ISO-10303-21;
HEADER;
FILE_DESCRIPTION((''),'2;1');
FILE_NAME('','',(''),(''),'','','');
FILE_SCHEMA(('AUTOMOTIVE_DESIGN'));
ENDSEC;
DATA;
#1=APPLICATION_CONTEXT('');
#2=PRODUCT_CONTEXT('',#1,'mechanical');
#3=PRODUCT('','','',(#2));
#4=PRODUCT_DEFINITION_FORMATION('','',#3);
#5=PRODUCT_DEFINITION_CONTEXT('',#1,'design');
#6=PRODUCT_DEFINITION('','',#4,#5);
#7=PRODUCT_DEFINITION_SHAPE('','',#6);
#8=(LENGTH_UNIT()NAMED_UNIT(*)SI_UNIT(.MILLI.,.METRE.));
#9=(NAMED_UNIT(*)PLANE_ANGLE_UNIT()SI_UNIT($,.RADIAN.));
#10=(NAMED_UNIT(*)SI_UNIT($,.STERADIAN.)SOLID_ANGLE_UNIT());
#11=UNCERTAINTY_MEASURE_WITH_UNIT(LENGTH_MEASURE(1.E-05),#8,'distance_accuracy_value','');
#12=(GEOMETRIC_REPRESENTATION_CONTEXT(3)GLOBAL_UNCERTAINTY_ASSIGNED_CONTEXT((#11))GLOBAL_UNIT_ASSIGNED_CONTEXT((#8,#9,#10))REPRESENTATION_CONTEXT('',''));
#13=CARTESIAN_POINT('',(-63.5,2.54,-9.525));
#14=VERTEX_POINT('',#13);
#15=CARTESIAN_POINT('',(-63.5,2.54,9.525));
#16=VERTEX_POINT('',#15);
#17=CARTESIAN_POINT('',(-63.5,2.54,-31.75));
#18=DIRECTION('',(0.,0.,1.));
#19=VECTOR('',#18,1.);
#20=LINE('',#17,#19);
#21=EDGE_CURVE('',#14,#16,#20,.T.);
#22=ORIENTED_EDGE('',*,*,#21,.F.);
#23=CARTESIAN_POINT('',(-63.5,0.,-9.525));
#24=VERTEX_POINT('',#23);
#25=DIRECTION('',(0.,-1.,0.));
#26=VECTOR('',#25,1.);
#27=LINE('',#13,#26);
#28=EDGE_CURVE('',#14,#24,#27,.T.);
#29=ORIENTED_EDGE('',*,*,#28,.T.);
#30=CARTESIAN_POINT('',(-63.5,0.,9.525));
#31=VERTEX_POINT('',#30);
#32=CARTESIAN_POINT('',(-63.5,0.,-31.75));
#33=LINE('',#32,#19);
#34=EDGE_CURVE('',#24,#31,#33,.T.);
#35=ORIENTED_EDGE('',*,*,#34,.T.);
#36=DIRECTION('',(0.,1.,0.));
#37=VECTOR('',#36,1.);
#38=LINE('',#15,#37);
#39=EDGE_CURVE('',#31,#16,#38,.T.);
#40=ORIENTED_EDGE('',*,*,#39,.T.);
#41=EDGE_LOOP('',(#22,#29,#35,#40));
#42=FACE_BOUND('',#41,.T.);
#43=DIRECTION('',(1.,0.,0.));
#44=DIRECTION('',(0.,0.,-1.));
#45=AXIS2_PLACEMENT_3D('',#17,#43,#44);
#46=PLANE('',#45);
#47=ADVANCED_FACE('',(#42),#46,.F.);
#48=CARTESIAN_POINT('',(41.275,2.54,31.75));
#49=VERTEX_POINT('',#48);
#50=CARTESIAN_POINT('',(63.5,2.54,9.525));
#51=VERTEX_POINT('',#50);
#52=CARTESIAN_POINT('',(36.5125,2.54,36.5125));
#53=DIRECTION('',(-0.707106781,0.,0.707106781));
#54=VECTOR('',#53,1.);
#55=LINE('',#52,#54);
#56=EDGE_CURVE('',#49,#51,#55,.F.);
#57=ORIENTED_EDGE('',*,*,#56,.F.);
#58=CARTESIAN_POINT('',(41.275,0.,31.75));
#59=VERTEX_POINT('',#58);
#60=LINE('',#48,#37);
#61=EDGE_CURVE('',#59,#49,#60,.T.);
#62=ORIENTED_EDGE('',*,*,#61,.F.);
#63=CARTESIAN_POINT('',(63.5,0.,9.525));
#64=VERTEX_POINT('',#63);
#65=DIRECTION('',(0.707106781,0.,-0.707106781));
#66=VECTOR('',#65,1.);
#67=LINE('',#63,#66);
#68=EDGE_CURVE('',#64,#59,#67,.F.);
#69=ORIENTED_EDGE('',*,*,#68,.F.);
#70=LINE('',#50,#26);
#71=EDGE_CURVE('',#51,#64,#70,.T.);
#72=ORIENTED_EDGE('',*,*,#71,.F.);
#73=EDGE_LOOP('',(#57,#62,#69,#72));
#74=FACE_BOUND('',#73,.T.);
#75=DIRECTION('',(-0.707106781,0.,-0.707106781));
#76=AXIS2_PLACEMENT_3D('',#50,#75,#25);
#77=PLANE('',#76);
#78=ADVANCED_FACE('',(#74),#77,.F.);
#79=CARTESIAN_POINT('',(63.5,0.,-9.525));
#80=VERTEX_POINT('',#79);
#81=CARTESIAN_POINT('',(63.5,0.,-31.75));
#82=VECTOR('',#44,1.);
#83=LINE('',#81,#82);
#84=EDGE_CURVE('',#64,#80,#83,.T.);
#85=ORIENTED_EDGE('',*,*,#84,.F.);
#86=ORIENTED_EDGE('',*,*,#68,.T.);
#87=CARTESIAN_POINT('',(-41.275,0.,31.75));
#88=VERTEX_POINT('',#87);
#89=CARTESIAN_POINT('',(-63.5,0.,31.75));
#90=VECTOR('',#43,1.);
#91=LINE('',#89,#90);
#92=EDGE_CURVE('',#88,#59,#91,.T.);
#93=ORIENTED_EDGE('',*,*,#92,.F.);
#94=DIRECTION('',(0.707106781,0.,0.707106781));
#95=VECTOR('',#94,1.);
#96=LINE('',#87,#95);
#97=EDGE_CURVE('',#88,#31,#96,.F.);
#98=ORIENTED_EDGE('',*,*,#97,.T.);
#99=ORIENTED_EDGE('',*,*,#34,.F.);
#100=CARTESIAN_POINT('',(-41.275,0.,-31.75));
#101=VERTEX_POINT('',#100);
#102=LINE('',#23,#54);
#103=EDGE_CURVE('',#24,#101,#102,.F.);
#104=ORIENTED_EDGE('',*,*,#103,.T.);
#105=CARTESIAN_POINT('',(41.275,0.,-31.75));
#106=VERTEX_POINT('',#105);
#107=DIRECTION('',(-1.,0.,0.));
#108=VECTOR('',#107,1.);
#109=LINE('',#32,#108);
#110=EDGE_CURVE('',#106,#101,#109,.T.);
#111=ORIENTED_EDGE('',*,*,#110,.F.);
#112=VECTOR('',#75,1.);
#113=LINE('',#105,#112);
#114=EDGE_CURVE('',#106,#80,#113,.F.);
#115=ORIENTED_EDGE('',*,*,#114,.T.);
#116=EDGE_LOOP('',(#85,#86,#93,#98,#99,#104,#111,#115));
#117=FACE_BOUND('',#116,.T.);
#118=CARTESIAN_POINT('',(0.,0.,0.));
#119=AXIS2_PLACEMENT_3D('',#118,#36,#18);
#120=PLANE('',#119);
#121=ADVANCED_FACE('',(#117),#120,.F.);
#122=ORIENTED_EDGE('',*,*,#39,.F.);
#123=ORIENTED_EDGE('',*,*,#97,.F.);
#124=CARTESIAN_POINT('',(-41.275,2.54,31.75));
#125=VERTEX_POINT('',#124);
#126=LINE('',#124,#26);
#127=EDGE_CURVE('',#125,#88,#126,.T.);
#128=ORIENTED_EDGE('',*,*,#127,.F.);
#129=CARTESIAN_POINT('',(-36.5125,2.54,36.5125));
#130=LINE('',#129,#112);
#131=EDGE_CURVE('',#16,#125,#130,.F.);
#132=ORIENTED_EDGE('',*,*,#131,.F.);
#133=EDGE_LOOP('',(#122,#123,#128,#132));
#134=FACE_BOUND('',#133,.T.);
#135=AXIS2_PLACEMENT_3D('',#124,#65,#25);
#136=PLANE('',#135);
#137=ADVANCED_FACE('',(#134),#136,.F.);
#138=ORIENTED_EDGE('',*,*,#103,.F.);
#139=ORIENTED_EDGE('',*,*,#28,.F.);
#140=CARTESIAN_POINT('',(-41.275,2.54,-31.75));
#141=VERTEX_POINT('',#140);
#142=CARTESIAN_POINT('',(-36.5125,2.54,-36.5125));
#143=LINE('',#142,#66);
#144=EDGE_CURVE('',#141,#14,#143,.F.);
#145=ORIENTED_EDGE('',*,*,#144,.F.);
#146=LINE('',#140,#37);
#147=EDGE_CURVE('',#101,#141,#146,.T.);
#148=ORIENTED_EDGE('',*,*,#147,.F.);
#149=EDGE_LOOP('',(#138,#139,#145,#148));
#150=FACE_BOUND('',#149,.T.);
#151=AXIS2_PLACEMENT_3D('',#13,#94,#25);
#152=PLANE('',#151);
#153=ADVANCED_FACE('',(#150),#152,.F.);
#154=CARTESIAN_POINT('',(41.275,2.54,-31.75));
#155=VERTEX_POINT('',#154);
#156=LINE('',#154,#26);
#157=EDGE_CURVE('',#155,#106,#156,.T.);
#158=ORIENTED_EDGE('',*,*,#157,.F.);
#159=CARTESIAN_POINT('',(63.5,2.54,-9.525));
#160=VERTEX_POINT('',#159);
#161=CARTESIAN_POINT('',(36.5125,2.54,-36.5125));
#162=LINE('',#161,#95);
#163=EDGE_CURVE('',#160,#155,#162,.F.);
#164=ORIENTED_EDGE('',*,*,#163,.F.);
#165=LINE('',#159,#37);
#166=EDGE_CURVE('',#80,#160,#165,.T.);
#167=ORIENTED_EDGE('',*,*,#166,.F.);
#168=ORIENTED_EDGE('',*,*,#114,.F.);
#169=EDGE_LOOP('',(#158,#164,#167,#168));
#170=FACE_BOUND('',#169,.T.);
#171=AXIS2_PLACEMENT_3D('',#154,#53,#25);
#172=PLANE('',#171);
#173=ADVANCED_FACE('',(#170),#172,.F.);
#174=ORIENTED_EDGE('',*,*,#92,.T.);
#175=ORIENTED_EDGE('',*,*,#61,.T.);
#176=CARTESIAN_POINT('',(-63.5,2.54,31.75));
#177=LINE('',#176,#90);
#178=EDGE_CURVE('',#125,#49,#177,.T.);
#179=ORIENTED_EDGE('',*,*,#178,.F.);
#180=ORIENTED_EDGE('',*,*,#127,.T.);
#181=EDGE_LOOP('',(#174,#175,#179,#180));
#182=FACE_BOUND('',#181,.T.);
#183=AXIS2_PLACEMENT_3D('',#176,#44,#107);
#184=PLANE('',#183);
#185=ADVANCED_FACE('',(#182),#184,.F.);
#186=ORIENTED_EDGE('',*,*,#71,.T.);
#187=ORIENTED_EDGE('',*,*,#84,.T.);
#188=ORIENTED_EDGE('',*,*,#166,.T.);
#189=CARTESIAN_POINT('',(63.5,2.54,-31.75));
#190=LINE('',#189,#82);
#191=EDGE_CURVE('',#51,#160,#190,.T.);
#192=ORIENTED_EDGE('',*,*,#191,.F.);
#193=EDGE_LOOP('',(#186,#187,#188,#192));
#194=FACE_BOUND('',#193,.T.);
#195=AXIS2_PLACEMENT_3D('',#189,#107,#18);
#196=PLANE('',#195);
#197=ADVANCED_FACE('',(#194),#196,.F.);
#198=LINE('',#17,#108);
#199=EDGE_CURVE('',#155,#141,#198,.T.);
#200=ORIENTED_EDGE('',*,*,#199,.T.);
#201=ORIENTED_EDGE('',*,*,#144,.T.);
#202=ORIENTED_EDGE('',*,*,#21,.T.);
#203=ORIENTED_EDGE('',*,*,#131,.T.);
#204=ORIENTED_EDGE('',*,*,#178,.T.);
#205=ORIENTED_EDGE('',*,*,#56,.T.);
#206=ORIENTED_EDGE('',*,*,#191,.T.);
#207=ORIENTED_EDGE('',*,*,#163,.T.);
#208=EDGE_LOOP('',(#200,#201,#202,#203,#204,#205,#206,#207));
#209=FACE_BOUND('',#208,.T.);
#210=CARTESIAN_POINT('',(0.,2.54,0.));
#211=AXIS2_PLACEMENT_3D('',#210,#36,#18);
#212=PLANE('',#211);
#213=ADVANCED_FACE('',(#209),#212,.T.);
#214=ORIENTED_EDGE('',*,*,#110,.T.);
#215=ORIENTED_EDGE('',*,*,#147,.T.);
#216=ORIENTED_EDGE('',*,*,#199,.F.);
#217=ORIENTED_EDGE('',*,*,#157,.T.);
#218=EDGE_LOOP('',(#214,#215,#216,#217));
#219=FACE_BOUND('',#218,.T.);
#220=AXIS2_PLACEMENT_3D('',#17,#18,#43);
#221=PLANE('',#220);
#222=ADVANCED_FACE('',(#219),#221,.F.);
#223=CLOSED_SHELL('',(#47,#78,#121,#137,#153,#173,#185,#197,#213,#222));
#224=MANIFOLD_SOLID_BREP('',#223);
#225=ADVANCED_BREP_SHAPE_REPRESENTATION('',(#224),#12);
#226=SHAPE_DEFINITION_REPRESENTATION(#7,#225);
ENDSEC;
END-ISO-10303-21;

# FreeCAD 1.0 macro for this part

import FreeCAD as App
import Part
import Sketcher
from FreeCAD import Vector
Q = App.Units.Quantity


def edges_at(feature, points):
    """Names of the edges that pass closest to the given points."""
    edges = feature.Shape.Edges
    near = lambda p: min(range(len(edges)), key=lambda i: edges[i].distToShape(Part.Vertex(*p))[0])
    return sorted({f"Edge{near(p) + 1}" for p in points})


def add_polygon(sketch, points):
    """Adds a closed chain of lines whose ends are joined by coincident constraints."""
    first, n = sketch.GeometryCount, len(points)
    for a, b in zip(points, points[1:] + points[:1]):
        sketch.addGeometry(Part.LineSegment(App.Vector(*a, 0), App.Vector(*b, 0)), False)
    for i in range(n):
        sketch.addConstraint(Sketcher.Constraint("Coincident", first + i, 2, first + (i + 1) % n, 1))

doc = App.newDocument("Part")
body = doc.addObject("PartDesign::Body", "Body")

# Sketch on XZ plane
sketch1 = body.newObject("Sketcher::SketchObject", "Sketch")
sketch1.AttachmentSupport = (doc.getObject("XZ_Plane"), [""])
sketch1.MapMode = "FlatFace"
add_polygon(sketch1, [(-64, -32), (-64, 32), (64, 32), (64, -32)])  # lines 0-3
sketch1.addConstraint(Sketcher.Constraint("Vertical", 0))
sketch1.addConstraint(Sketcher.Constraint("Horizontal", 1))
sketch1.addConstraint(Sketcher.Constraint("Vertical", 2))
sketch1.addConstraint(Sketcher.Constraint("Horizontal", 3))
sketch1.addConstraint(Sketcher.Constraint("Symmetric", 0, 2, 2, 2, -1, 1))
sketch1.addConstraint(Sketcher.Constraint("DistanceX", 1, 1, 1, 2, Q("5 in")))
sketch1.addConstraint(Sketcher.Constraint("DistanceY", 0, 1, 0, 2, Q("2.5 in")))
pad1 = body.newObject("PartDesign::Pad", "Pad")
pad1.Profile = sketch1
pad1.Length = Q("0.1 in")
pad1.Reversed = True
doc.recompute()

chamfer = body.newObject("PartDesign::Chamfer", "Chamfer")
chamfer.Base = (pad1, edges_at(pad1, [
    (-63.5, 1.27, -31.75),
    (63.5, 1.27, -31.75),
    (63.5, 1.27, 31.75),
    (-63.5, 1.27, 31.75),
]))
chamfer.Size = Q("0.875 in")

doc.recompute()
